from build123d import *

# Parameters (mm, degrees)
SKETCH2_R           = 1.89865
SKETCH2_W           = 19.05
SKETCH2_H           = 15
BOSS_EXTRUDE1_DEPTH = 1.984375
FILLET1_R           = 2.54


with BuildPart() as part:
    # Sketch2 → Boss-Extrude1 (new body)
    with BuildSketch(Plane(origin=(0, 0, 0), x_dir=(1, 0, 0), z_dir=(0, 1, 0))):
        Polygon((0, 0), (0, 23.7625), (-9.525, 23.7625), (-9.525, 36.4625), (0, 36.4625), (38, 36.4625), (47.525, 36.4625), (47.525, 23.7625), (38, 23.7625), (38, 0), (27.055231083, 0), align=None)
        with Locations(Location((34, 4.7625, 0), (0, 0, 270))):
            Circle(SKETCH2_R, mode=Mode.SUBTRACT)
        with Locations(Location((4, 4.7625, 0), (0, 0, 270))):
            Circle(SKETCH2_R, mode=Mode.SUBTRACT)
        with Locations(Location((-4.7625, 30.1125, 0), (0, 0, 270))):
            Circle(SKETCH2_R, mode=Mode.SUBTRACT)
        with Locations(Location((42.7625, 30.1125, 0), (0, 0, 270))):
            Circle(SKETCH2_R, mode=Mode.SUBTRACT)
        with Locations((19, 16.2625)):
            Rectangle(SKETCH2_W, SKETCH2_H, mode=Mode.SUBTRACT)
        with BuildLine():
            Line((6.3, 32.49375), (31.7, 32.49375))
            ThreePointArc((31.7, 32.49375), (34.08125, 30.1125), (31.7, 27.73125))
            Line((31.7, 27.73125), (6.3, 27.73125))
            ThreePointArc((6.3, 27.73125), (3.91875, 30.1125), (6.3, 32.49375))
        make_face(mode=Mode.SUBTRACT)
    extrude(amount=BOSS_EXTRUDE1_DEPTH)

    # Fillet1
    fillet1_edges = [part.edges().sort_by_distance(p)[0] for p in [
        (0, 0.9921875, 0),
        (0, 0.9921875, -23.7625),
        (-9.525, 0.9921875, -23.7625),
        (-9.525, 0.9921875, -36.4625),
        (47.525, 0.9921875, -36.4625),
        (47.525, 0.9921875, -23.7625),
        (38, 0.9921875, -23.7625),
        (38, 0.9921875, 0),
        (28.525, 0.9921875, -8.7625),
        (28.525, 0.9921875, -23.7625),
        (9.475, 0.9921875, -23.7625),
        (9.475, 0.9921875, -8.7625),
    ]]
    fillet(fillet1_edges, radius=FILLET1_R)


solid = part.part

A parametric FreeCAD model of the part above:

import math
import FreeCAD as App
import Part
import Sketcher

V = App.Vector
Q = App.Units.Quantity


def edges_at(feature, points):
    """Names of the edges that pass closest to the given points."""
    edges = feature.Shape.Edges
    near = lambda p: min(range(len(edges)), key=lambda i: edges[i].distToShape(Part.Vertex(*p))[0])
    return sorted({f"Edge{near(p) + 1}" for p in points})


def add_polygon(sketch, points):
    """Adds a closed chain of lines whose ends are joined by coincident constraints."""
    first, n = sketch.GeometryCount, len(points)
    for a, b in zip(points, points[1:] + points[:1]):
        sketch.addGeometry(Part.LineSegment(App.Vector(*a, 0), App.Vector(*b, 0)), False)
    for i in range(n):
        sketch.addConstraint(Sketcher.Constraint("Coincident", first + i, 2, first + (i + 1) % n, 1))

doc = App.newDocument("Part")
params = doc.addObject("Spreadsheet::Sheet", "Params")
for row, (alias, value) in enumerate([
    ("sketch1_width", "1 in"),
    ("sketch1_height", "0.5 in"),
    ("sketch1_radius", "0.09375 in"),
    ("sketch1_width2", "0.75 in"),
    ("sketch1_width3", "0.375 in"),
    ("pad1_length", "0.078125 in"),
    ("fillet_radius", "0.1 in"),
], start=1):
    params.set(f"A{row}", alias)
    params.set(f"B{row}", "=" + value)
    params.setAlias(f"B{row}", alias)

body = doc.addObject("PartDesign::Body", "Body")

# Sketch on XZ plane
sketch1 = body.newObject("Sketcher::SketchObject", "Sketch")
sketch1.AttachmentSupport = (doc.getObject("XZ_Plane"), [""])
sketch1.MapMode = "FlatFace"
add_polygon(sketch1, [(0, -23.8), (0, 0), (38, 0), (38, -23.8), (47.5, -23.8), (47.5, -36.5), (-9.5, -36.5), (-9.5, -23.8)])  # lines 0-7
sketch1.addGeometry(Part.Circle(V(34, -4.8, 0), V(0, 0, 1), 1.9), False)  # 8
sketch1.addGeometry(Part.Circle(V(4, -4.8, 0), V(0, 0, 1), 1.9), False)  # 9
add_polygon(sketch1, [(9.5, -8.8), (9.5, -23.8), (28.5, -23.8), (28.5, -8.8)])  # lines 10-13
sketch1.addGeometry(Part.Circle(V(42.8, -30.1, 0), V(0, 0, 1), 1.9), False)  # 14
sketch1.addGeometry(Part.LineSegment(V(6.3, -32.5, 0), V(31.7, -32.5, 0)), False)  # 15
sketch1.addGeometry(Part.ArcOfCircle(Part.Circle(V(31.7, -30.1, 0), V(0, 0, 1), 2.4), math.radians(-90), math.radians(90)), False)  # 16
sketch1.addGeometry(Part.LineSegment(V(31.7, -27.7, 0), V(6.3, -27.7, 0)), False)  # 17
sketch1.addGeometry(Part.ArcOfCircle(Part.Circle(V(6.3, -30.1, 0), V(0, 0, 1), 2.4), math.radians(90), math.radians(270)), False)  # 18
sketch1.addGeometry(Part.Circle(V(-4.8, -30.1, 0), V(0, 0, 1), 1.9), False)  # 19
sketch1.addConstraint(Sketcher.Constraint("Tangent", 15, 2, 16, 1))
sketch1.addConstraint(Sketcher.Constraint("Tangent", 16, 2, 17, 1))
sketch1.addConstraint(Sketcher.Constraint("Tangent", 17, 2, 18, 1))
sketch1.addConstraint(Sketcher.Constraint("Tangent", 18, 2, 15, 1))
sketch1.addConstraint(Sketcher.Constraint("Vertical", 0))
sketch1.addConstraint(Sketcher.Constraint("Horizontal", 1))
sketch1.addConstraint(Sketcher.Constraint("Vertical", 2))
sketch1.addConstraint(Sketcher.Constraint("Horizontal", 3))
sketch1.addConstraint(Sketcher.Constraint("Vertical", 4))
sketch1.addConstraint(Sketcher.Constraint("Horizontal", 5))
sketch1.addConstraint(Sketcher.Constraint("Vertical", 6))
sketch1.addConstraint(Sketcher.Constraint("Horizontal", 7))
sketch1.addConstraint(Sketcher.Constraint("Vertical", 10))
sketch1.addConstraint(Sketcher.Constraint("Horizontal", 11))
sketch1.addConstraint(Sketcher.Constraint("Vertical", 12))
sketch1.addConstraint(Sketcher.Constraint("Horizontal", 13))
sketch1.addConstraint(Sketcher.Constraint("Horizontal", 15))
sketch1.addConstraint(Sketcher.Constraint("Horizontal", 17))
sketch1.addConstraint(Sketcher.Constraint("Coincident", 0, 2, -1, 1))
sketch1.addConstraint(Sketcher.Constraint("Equal", 8, 9))
sketch1.addConstraint(Sketcher.Constraint("Equal", 9, 14))
sketch1.addConstraint(Sketcher.Constraint("Equal", 14, 19))
sketch1.addConstraint(Sketcher.Constraint("Horizontal", 8, 3, 9, 3))
sketch1.addConstraint(Sketcher.Constraint("Horizontal", 14, 3, 16, 3))
sketch1.addConstraint(Sketcher.Constraint("Horizontal", 18, 3, 19, 3))
sketch1.addConstraint(Sketcher.Constraint("Horizontal", 3, 2, 6, 2))
sketch1.addConstraint(Sketcher.Constraint("Horizontal", 7, 2, 10, 2))
sketch1.addConstraint(Sketcher.Constraint("Equal", 3, 7))
sketch1.addConstraint(Sketcher.Constraint("DistanceX", 15, 1, 15, 2, Q("1 in")))
sketch1.addConstraint(Sketcher.Constraint("DistanceY", 4, 2, 4, 1, Q("0.5 in")))
sketch1.addConstraint(Sketcher.Constraint("Radius", 16, Q("0.09375 in")))
sketch1.addConstraint(Sketcher.Constraint("Diameter", 8, Q("0.1495 in")))
sketch1.addConstraint(Sketcher.Constraint("DistanceX", 11, 1, 11, 2, Q("0.75 in")))
sketch1.addConstraint(Sketcher.Constraint("DistanceX", 3, 1, 3, 2, Q("0.375 in")))
sketch1.addConstraint(Sketcher.Constraint("DistanceY", 14, 3, 2, 2, Q("0.25 in")))
sketch1.addConstraint(Sketcher.Constraint("DistanceY", 8, 3, -1, 1, Q("0.1875 in")))
sketch1.addConstraint(Sketcher.Constraint("DistanceX", 19, 3, -1, 1, Q("0.1875 in")))
sketch1.addConstraint(Sketcher.Constraint("DistanceX", 1, 2, 14, 3, Q("0.1875 in")))
sketch1.addConstraint(Sketcher.Constraint("DistanceX", 18, 3, 10, 2, Q("0.125 in")))
sketch1.addConstraint(Sketcher.Constraint("DistanceX", 1, 1, 1, 2, 38.0))
sketch1.addConstraint(Sketcher.Constraint("DistanceY", 0, 1, 0, 2, 23.7625))
sketch1.addConstraint(Sketcher.Constraint("DistanceY", 10, 2, 10, 1, 15.0))
sketch1.addConstraint(Sketcher.Constraint("DistanceX", -1, 1, 8, 3, 34.0))
sketch1.addConstraint(Sketcher.Constraint("DistanceX", -1, 1, 9, 3, 4.0))
sketch1.addConstraint(Sketcher.Constraint("DistanceX", -1, 1, 16, 3, 31.7))
sketch1.setExpression("Constraints[40]", "Params.sketch1_width")
sketch1.setExpression("Constraints[41]", "Params.sketch1_height")
sketch1.setExpression("Constraints[42]", "Params.sketch1_radius")
sketch1.setExpression("Constraints[44]", "Params.sketch1_width2")
sketch1.setExpression("Constraints[45]", "Params.sketch1_width3")
pad1 = body.newObject("PartDesign::Pad", "Pad")
pad1.Profile = sketch1
pad1.setExpression("Length", "Params.pad1_length")
pad1.Reversed = True
doc.recompute()

fillet = body.newObject("PartDesign::Fillet", "Fillet")
fillet.Base = (pad1, edges_at(pad1, [
    (0, 0.992, 0),
    (0, 0.992, -23.762),
    (-9.525, 0.992, -23.762),
    (-9.525, 0.992, -36.462),
    (47.525, 0.992, -36.462),
    (47.525, 0.992, -23.762),
    (38, 0.992, -23.762),
    (38, 0.992, 0),
    (28.525, 0.992, -8.762),
    (28.525, 0.992, -23.762),
    (9.475, 0.992, -23.762),
    (9.475, 0.992, -8.762),
]))
fillet.setExpression("Radius", "Params.fillet_radius")

doc.recompute()
